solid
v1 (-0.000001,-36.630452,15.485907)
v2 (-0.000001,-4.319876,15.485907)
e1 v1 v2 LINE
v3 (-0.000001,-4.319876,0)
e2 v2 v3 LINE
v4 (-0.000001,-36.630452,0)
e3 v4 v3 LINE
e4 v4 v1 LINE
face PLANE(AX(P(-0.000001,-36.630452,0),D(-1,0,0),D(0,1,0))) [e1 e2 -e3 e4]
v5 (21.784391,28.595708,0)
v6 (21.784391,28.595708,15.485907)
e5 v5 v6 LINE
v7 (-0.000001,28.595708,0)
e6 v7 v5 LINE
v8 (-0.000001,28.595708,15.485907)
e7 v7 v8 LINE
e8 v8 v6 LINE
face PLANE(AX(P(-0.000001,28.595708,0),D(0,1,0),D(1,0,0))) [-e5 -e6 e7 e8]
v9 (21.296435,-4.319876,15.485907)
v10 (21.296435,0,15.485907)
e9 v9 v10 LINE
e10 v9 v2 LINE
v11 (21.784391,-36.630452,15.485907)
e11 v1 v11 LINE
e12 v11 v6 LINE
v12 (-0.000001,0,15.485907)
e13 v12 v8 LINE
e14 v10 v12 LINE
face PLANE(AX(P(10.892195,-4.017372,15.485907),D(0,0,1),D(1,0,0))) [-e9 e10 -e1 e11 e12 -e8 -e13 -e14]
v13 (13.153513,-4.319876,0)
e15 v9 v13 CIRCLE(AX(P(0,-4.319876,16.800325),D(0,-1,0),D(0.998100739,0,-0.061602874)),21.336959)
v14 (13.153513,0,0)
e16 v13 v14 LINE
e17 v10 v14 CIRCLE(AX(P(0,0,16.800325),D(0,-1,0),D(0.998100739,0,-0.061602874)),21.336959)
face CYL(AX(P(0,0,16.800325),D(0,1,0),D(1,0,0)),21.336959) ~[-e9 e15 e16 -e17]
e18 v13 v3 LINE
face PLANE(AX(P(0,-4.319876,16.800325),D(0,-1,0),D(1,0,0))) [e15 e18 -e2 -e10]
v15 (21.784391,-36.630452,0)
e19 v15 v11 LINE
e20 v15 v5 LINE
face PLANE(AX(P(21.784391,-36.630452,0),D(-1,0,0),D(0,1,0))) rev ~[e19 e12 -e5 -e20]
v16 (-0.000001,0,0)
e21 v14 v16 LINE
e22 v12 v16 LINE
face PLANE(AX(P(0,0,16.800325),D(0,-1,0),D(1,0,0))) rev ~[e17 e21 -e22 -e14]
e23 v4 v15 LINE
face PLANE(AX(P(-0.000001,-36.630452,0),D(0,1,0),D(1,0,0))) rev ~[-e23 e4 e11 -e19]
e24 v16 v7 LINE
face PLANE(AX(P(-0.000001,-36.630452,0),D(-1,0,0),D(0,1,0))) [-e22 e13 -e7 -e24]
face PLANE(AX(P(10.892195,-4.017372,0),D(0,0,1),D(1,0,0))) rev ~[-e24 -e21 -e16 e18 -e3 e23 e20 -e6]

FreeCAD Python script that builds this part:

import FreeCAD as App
import Part
import Sketcher
from FreeCAD import Vector

doc = App.newDocument("Part")
body = doc.addObject("PartDesign::Body", "Body")

sketch1 = body.newObject("Sketcher::SketchObject", "Sketch")
sketch1.AttachmentSupport = (doc.getObject("XZ_Plane"), [""])
sketch1.MapMode = "FlatFace"
sketch1.addGeometry(Part.Circle(Vector(0, 16.800325, 0), Vector(0, 0, 1), 21.336959), False)
sketch1.addConstraint(Sketcher.Constraint("PointOnObject", 0, 3, -2))
sketch1.addConstraint(Sketcher.Constraint("Diameter", 0, 42.673918))
sketch1.addConstraint(Sketcher.Constraint("DistanceY", -1, 1, 0, 3, 16.800325))
pad1 = body.newObject("PartDesign::Pad", "Pad")
pad1.Profile = sketch1
pad1.Length = 4.319876

sketch2 = body.newObject("Sketcher::SketchObject", "Sketch001")
sketch2.AttachmentSupport = (doc.getObject("XY_Plane"), [""])
sketch2.MapMode = "FlatFace"
sketch2.addGeometry(Part.LineSegment(Vector(0, 28.595708, 0), Vector(0, -36.630452, 0)), False)
sketch2.addGeometry(Part.LineSegment(Vector(0, -36.630452, 0), Vector(21.784391, -36.630452, 0)), False)
sketch2.addGeometry(Part.LineSegment(Vector(21.784391, -36.630452, 0), Vector(21.784391, 28.595708, 0)), False)
sketch2.addGeometry(Part.LineSegment(Vector(21.784391, 28.595708, 0), Vector(0, 28.595708, 0)), False)
sketch2.addConstraint(Sketcher.Constraint("Coincident", 0, 2, 1, 1))
sketch2.addConstraint(Sketcher.Constraint("Coincident", 1, 2, 2, 1))
sketch2.addConstraint(Sketcher.Constraint("Coincident", 2, 2, 3, 1))
sketch2.addConstraint(Sketcher.Constraint("Coincident", 3, 2, 0, 1))
sketch2.addConstraint(Sketcher.Constraint("Vertical", 0))
sketch2.addConstraint(Sketcher.Constraint("Horizontal", 1))
sketch2.addConstraint(Sketcher.Constraint("Vertical", 2))
sketch2.addConstraint(Sketcher.Constraint("Horizontal", 3))
sketch2.addConstraint(Sketcher.Constraint("PointOnObject", 0, 2, -2))
sketch2.addConstraint(Sketcher.Constraint("DistanceX", 1, 1, 1, 2, 21.784391))
sketch2.addConstraint(Sketcher.Constraint("DistanceY", 0, 2, 0, 1, 65.22616))
sketch2.addConstraint(Sketcher.Constraint("DistanceY", 0, 2, -1, 1, 36.630452))
pad2 = body.newObject("PartDesign::Pad", "Pad001")
pad2.Profile = sketch2
pad2.Length = 15.485907

doc.recompute()
